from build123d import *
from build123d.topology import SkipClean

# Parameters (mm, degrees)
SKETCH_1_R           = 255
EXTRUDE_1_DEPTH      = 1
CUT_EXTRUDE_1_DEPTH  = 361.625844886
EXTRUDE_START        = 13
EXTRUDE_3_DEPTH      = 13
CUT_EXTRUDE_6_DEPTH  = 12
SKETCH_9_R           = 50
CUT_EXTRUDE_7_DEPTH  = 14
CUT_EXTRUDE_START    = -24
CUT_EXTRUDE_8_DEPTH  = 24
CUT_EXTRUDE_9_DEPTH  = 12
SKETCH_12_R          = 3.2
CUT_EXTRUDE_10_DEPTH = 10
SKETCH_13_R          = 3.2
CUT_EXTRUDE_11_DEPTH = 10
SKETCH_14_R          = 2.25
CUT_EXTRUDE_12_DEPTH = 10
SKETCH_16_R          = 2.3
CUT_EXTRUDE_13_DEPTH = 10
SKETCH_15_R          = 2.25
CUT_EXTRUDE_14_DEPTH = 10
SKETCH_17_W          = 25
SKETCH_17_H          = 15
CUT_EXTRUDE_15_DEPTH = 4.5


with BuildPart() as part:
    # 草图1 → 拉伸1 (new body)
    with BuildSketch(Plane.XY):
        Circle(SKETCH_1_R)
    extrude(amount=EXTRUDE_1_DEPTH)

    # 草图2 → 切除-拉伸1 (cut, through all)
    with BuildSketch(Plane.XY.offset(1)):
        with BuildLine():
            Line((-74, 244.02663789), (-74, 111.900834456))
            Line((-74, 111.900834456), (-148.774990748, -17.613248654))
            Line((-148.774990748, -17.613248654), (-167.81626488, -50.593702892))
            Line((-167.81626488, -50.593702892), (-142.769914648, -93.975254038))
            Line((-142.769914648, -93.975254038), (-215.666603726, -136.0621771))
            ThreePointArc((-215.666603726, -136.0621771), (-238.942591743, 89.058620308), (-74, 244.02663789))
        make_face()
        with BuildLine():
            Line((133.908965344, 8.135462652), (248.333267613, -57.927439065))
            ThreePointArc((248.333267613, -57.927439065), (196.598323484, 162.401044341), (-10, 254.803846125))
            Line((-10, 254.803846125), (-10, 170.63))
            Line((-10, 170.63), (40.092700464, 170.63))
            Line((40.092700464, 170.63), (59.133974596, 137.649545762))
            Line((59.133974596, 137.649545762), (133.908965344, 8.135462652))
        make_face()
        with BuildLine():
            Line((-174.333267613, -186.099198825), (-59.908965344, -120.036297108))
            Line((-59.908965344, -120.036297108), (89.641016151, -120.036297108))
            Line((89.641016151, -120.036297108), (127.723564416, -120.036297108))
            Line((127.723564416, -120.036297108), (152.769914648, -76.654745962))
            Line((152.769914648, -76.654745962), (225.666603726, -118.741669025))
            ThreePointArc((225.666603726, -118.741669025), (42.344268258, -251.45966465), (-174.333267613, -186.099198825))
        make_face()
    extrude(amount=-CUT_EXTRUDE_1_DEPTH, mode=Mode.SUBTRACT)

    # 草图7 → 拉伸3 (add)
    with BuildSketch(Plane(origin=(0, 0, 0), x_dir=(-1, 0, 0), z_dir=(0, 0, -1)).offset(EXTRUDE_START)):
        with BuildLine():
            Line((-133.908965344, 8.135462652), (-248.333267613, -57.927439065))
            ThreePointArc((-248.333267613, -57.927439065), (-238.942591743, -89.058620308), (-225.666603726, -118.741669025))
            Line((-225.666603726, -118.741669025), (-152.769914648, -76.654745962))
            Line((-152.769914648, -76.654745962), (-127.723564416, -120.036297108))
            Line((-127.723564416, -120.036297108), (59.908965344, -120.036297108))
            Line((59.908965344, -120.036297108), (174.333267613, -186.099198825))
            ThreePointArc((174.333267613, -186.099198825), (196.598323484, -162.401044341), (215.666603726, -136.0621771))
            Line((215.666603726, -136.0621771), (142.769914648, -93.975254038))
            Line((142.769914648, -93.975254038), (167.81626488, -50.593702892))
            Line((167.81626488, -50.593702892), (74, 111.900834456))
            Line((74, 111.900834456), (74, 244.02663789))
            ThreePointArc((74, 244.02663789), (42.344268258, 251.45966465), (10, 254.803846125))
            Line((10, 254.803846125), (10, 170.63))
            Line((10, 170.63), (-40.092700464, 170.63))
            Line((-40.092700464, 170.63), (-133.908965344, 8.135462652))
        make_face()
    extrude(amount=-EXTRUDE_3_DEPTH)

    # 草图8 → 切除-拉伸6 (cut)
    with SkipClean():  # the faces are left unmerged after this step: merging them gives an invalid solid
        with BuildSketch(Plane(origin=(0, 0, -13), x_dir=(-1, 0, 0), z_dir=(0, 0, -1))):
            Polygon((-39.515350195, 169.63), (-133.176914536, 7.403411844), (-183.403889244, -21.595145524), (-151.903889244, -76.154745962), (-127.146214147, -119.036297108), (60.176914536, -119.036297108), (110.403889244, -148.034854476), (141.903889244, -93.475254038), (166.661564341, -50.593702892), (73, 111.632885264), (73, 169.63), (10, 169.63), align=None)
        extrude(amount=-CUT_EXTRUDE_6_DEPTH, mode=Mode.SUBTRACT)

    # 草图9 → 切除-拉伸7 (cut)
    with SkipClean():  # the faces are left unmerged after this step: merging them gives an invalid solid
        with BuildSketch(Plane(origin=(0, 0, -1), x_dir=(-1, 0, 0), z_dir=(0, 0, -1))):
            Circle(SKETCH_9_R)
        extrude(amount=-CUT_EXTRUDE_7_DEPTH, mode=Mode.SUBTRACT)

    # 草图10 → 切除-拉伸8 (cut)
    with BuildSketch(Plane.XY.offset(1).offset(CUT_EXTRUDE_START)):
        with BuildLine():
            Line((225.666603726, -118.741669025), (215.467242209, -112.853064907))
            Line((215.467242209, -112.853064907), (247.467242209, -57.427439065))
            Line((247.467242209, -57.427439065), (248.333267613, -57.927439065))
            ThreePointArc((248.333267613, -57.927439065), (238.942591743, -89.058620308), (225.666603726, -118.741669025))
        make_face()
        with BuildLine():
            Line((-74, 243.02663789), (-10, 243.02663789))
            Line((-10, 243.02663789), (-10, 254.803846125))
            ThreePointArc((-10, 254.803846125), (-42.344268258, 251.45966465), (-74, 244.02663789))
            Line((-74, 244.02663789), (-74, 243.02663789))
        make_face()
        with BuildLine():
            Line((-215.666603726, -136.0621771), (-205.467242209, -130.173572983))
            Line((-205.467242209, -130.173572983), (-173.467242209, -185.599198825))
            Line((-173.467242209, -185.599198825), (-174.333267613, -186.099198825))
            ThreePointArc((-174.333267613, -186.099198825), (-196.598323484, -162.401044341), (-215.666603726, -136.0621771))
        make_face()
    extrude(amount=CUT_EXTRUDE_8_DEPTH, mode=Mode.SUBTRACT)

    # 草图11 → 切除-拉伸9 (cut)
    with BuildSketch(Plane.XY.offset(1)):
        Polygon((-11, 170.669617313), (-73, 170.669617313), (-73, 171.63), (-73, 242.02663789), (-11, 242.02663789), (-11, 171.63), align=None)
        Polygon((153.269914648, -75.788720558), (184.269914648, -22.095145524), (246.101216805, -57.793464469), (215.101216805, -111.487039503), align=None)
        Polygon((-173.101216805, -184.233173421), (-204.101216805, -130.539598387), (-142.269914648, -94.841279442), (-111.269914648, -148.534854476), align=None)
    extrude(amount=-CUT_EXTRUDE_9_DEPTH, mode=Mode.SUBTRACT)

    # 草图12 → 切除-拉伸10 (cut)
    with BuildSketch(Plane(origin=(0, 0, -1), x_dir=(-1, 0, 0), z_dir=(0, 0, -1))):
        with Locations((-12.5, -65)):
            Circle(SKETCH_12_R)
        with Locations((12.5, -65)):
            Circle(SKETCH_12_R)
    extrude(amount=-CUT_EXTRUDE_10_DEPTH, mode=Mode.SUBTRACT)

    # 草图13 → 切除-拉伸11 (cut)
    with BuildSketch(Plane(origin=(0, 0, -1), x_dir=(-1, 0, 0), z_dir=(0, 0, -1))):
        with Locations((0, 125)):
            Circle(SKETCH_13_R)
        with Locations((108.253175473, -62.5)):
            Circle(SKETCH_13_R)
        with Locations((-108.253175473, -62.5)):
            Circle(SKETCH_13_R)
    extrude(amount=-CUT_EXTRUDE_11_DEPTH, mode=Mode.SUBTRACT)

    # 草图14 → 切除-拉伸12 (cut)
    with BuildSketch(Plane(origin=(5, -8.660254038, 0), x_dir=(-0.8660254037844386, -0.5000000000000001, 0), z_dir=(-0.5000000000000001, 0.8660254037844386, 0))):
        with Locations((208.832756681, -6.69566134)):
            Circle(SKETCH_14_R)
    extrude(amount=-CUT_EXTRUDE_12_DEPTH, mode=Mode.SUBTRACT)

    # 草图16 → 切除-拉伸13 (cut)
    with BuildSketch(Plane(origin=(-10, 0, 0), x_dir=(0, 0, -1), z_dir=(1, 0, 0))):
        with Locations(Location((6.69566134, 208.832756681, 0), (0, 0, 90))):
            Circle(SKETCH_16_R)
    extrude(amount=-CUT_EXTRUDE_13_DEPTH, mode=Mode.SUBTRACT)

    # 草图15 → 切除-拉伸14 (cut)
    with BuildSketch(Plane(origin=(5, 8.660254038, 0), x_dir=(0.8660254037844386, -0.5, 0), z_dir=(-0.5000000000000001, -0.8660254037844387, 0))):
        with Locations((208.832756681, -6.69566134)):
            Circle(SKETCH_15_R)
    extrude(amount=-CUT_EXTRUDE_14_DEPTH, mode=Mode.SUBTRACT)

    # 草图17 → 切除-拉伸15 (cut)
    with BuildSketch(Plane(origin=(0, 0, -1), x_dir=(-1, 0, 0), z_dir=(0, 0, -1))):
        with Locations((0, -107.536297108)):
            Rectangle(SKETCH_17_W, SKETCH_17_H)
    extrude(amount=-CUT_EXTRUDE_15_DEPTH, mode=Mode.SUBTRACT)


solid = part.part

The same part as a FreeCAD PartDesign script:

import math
import FreeCAD as App
import Part
import Sketcher
from FreeCAD import Vector
Q = App.Units.Quantity


def add_polygon(sketch, points):
    """Adds a closed chain of lines whose ends are joined by coincident constraints."""
    first, n = sketch.GeometryCount, len(points)
    for a, b in zip(points, points[1:] + points[:1]):
        sketch.addGeometry(Part.LineSegment(App.Vector(*a, 0), App.Vector(*b, 0)), False)
    for i in range(n):
        sketch.addConstraint(Sketcher.Constraint("Coincident", first + i, 2, first + (i + 1) % n, 1))

doc = App.newDocument("Part")
body = doc.addObject("PartDesign::Body", "Body")

# Sketch on XY plane
sketch1 = body.newObject("Sketcher::SketchObject", "Sketch")
sketch1.AttachmentSupport = (doc.getObject("XY_Plane"), [""])
sketch1.MapMode = "FlatFace"
sketch1.addGeometry(Part.Circle(Vector(0, 0, 0), Vector(0, 0, 1), 255), False)
sketch1.addConstraint([
    Sketcher.Constraint("Coincident", 0, 3, -1, 1),
    Sketcher.Constraint("Diameter", 0, 510.0),
])
pad1 = body.newObject("PartDesign::Pad", "Pad")
pad1.Profile = sketch1
pad1.Length = 1

# Sketch on XY plane
sketch2 = body.newObject("Sketcher::SketchObject", "Sketch001")
sketch2.AttachmentSupport = (doc.getObject("XY_Plane"), [""])
sketch2.MapMode = "FlatFace"
sketch2.AttachmentOffset = App.Placement(Vector(0, 0, 1), App.Rotation())
sketch2.addGeometry([
    Part.LineSegment(Vector(-74, 112, 0), Vector(-74, 244, 0)),  # 0
    Part.ArcOfCircle(Part.Circle(Vector(0, 0, 0), Vector(0, 0, 1), 255), math.radians(107), math.radians(212)),  # 1
    Part.LineSegment(Vector(-216, -136, 0), Vector(-143, -94, 0)),  # 2
    Part.LineSegment(Vector(-143, -94, 0), Vector(-168, -51, 0)),  # 3
    Part.LineSegment(Vector(-168, -51, 0), Vector(-149, -18, 0)),  # 4
    Part.LineSegment(Vector(-149, -18, 0), Vector(-74, 112, 0)),  # 5
    Part.LineSegment(Vector(134, 8, 0), Vector(248, -58, 0)),  # 6
    Part.ArcOfCircle(Part.Circle(Vector(0, 0, 0), Vector(0, 0, 1), 255), math.radians(-13), math.radians(92)),  # 7
    Part.LineSegment(Vector(-10, 255, 0), Vector(-10, 171, 0)),  # 8
    Part.LineSegment(Vector(-10, 171, 0), Vector(40, 171, 0)),  # 9
    Part.LineSegment(Vector(40, 171, 0), Vector(59, 138, 0)),  # 10
    Part.LineSegment(Vector(59, 138, 0), Vector(134, 8, 0)),  # 11
    Part.LineSegment(Vector(-60, -120, 0), Vector(-174, -186, 0)),  # 12
    Part.ArcOfCircle(Part.Circle(Vector(0, 0, 0), Vector(0, 0, 1), 255), math.radians(-133), math.radians(-28)),  # 13
    Part.LineSegment(Vector(226, -119, 0), Vector(153, -77, 0)),  # 14
    Part.LineSegment(Vector(153, -77, 0), Vector(128, -120, 0)),  # 15
    Part.LineSegment(Vector(128, -120, 0), Vector(-60, -120, 0)),  # 16
], False)
sketch2.addConstraint([
    Sketcher.Constraint("Coincident", 0, 2, 1, 1),
    Sketcher.Constraint("Coincident", 1, 2, 2, 1),
    Sketcher.Constraint("Coincident", 2, 2, 3, 1),
    Sketcher.Constraint("Coincident", 3, 2, 4, 1),
    Sketcher.Constraint("Coincident", 4, 2, 5, 1),
    Sketcher.Constraint("Coincident", 5, 2, 0, 1),
    Sketcher.Constraint("Coincident", 6, 2, 7, 1),
    Sketcher.Constraint("Coincident", 7, 2, 8, 1),
    Sketcher.Constraint("Coincident", 8, 2, 9, 1),
    Sketcher.Constraint("Coincident", 9, 2, 10, 1),
    Sketcher.Constraint("Coincident", 10, 2, 11, 1),
    Sketcher.Constraint("Coincident", 11, 2, 6, 1),
    Sketcher.Constraint("Coincident", 12, 2, 13, 1),
    Sketcher.Constraint("Coincident", 13, 2, 14, 1),
    Sketcher.Constraint("Coincident", 14, 2, 15, 1),
    Sketcher.Constraint("Coincident", 15, 2, 16, 1),
    Sketcher.Constraint("Coincident", 16, 2, 12, 1),
    Sketcher.Constraint("Vertical", 0),
    Sketcher.Constraint("Vertical", 8),
    Sketcher.Constraint("Horizontal", 9),
    Sketcher.Constraint("Horizontal", 16),
    Sketcher.Constraint("Coincident", 1, 3, -1, 1),
    Sketcher.Constraint("Coincident", 7, 3, -1, 1),
    Sketcher.Constraint("Coincident", 13, 3, -1, 1),
    Sketcher.Constraint("Equal", 1, 7),
    Sketcher.Constraint("Equal", 7, 13),
    Sketcher.Constraint("Perpendicular", 2, 3),
    Sketcher.Constraint("Parallel", 4, 5),
    Sketcher.Constraint("Perpendicular", 5, 6),
    Sketcher.Constraint("Parallel", 3, 10),
    Sketcher.Constraint("Parallel", 10, 11),
    Sketcher.Constraint("Perpendicular", 11, 12),
    Sketcher.Constraint("Parallel", 6, 14),
    Sketcher.Constraint("Perpendicular", 14, 15),
    Sketcher.Constraint("Equal", 4, 10),
    Sketcher.Constraint("Equal", 5, 11),
    Sketcher.Constraint("Equal", 6, 12),
    Sketcher.Constraint("Equal", 2, 14),
    Sketcher.Constraint("Equal", 3, 15),
    Sketcher.Constraint("Radius", 1, 255.0),
    Sketcher.Constraint("Angle", 2, Q("30 deg")),
    Sketcher.Constraint("Angle", 4, Q("60 deg")),
    Sketcher.Constraint("DistanceX", 0, 2, -1, 1, 74.0),
    Sketcher.Constraint("DistanceX", 7, 2, -1, 1, 10.0),
    Sketcher.Constraint("DistanceY", -1, 1, 8, 2, 170.63),
    Sketcher.Constraint("DistanceX", 9, 1, 9, 2, 50.0927),
    Sketcher.Constraint("Distance", 3, 50.0927),
    Sketcher.Constraint("DistanceX", 16, 2, 16, 1, 187.63253),
    Sketcher.Constraint("DistanceY", 12, 2, -1, 1, 186.099199),
    Sketcher.Constraint("DistanceY", 10, 2, 7, 2, 117.1543),
    Sketcher.Constraint("DistanceY", 6, 2, 11, 2, 66.062902),
])
pocket1 = body.newObject("PartDesign::Pocket", "Pocket")
pocket1.Profile = sketch2
pocket1.Type = "ThroughAll"

# Sketch on XY plane
sketch3 = body.newObject("Sketcher::SketchObject", "Sketch002")
sketch3.AttachmentSupport = (doc.getObject("XY_Plane"), [""])
sketch3.MapMode = "FlatFace"
sketch3.AttachmentOffset = App.Placement(Vector(0, 0, -13), App.Rotation())
sketch3.addGeometry([
    Part.LineSegment(Vector(134, 8, 0), Vector(248, -58, 0)),  # 0
    Part.ArcOfCircle(Part.Circle(Vector(0, 0, 0), Vector(0, 0, 1), 255), math.radians(-27.75), math.radians(-13.13)),  # 1
    Part.LineSegment(Vector(226, -119, 0), Vector(153, -77, 0)),  # 2
    Part.LineSegment(Vector(153, -77, 0), Vector(128, -120, 0)),  # 3
    Part.LineSegment(Vector(128, -120, 0), Vector(-60, -120, 0)),  # 4
    Part.LineSegment(Vector(-60, -120, 0), Vector(-174, -186, 0)),  # 5
    Part.ArcOfCircle(Part.Circle(Vector(0, 0, 0), Vector(0, 0, 1), 255), math.radians(-147.75), math.radians(-133.13)),  # 6
    Part.LineSegment(Vector(-216, -136, 0), Vector(-143, -94, 0)),  # 7
    Part.LineSegment(Vector(-143, -94, 0), Vector(-168, -51, 0)),  # 8
    Part.LineSegment(Vector(-168, -51, 0), Vector(-74, 112, 0)),  # 9
    Part.LineSegment(Vector(-74, 112, 0), Vector(-74, 244, 0)),  # 10
    Part.ArcOfCircle(Part.Circle(Vector(0, 0, 0), Vector(0, 0, 1), 255), math.radians(92.25), math.radians(106.87)),  # 11
    Part.LineSegment(Vector(-10, 255, 0), Vector(-10, 171, 0)),  # 12
    Part.LineSegment(Vector(-10, 171, 0), Vector(40, 171, 0)),  # 13
    Part.LineSegment(Vector(40, 171, 0), Vector(134, 8, 0)),  # 14
], False)
sketch3.addConstraint([
    Sketcher.Constraint("Coincident", 0, 2, 1, 2),
    Sketcher.Constraint("Coincident", 1, 1, 2, 1),
    Sketcher.Constraint("Coincident", 2, 2, 3, 1),
    Sketcher.Constraint("Coincident", 3, 2, 4, 1),
    Sketcher.Constraint("Coincident", 4, 2, 5, 1),
    Sketcher.Constraint("Coincident", 5, 2, 6, 2),
    Sketcher.Constraint("Coincident", 6, 1, 7, 1),
    Sketcher.Constraint("Coincident", 7, 2, 8, 1),
    Sketcher.Constraint("Coincident", 8, 2, 9, 1),
    Sketcher.Constraint("Coincident", 9, 2, 10, 1),
    Sketcher.Constraint("Coincident", 10, 2, 11, 2),
    Sketcher.Constraint("Coincident", 11, 1, 12, 1),
    Sketcher.Constraint("Coincident", 12, 2, 13, 1),
    Sketcher.Constraint("Coincident", 13, 2, 14, 1),
    Sketcher.Constraint("Coincident", 14, 2, 0, 1),
    Sketcher.Constraint("Horizontal", 4),
    Sketcher.Constraint("Vertical", 10),
    Sketcher.Constraint("Vertical", 12),
    Sketcher.Constraint("Horizontal", 13),
    Sketcher.Constraint("Coincident", 1, 3, -1, 1),
    Sketcher.Constraint("Coincident", 6, 3, -1, 1),
    Sketcher.Constraint("Coincident", 11, 3, -1, 1),
    Sketcher.Constraint("Equal", 1, 6),
    Sketcher.Constraint("Equal", 6, 11),
    Sketcher.Constraint("Parallel", 0, 2),
    Sketcher.Constraint("Perpendicular", 2, 3),
    Sketcher.Constraint("Parallel", 5, 7),
    Sketcher.Constraint("Perpendicular", 7, 8),
    Sketcher.Constraint("Parallel", 3, 9),
    Sketcher.Constraint("Parallel", 8, 14),
    Sketcher.Constraint("Equal", 0, 5),
    Sketcher.Constraint("Equal", 2, 7),
    Sketcher.Constraint("Equal", 3, 8),
    Sketcher.Constraint("Equal", 9, 14),
    Sketcher.Constraint("Radius", 1, 255.0),
    Sketcher.Constraint("Angle", 0, Q("-30 deg")),
    Sketcher.Constraint("Angle", 5, Q("-150 deg")),
    Sketcher.Constraint("DistanceX", 9, 2, -1, 1, 74.0),
    Sketcher.Constraint("DistanceX", 11, 1, -1, 1, 10.0),
    Sketcher.Constraint("DistanceY", -1, 1, 12, 2, 170.63),
    Sketcher.Constraint("DistanceX", 13, 1, 13, 2, 50.0927),
    Sketcher.Constraint("Distance", 3, 50.0927),
    Sketcher.Constraint("DistanceX", 4, 2, 4, 1, 187.63253),
    Sketcher.Constraint("DistanceY", 5, 2, -1, 1, 186.099199),
    Sketcher.Constraint("DistanceY", 5, 2, 4, 2, 66.062902),
])
pad2 = body.newObject("PartDesign::Pad", "Pad001")
pad2.Profile = sketch3
pad2.Length = 13

# Sketch on XY plane
sketch4 = body.newObject("Sketcher::SketchObject", "Sketch003")
sketch4.AttachmentSupport = (doc.getObject("XY_Plane"), [""])
sketch4.MapMode = "FlatFace"
sketch4.AttachmentOffset = App.Placement(Vector(0, 0, -13), App.Rotation())
add_polygon(sketch4, [(40, 170), (133, 7), (183, -22), (152, -76), (127, -119), (-60, -119), (-110, -148), (-142, -93), (-167, -51), (-73, 112), (-73, 170)])  # lines 0-10
sketch4.addConstraint([
    Sketcher.Constraint("Horizontal", 4),
    Sketcher.Constraint("Vertical", 9),
    Sketcher.Constraint("Horizontal", 10),
    Sketcher.Constraint("Perpendicular", 1, 2),
    Sketcher.Constraint("Parallel", 2, 3),
    Sketcher.Constraint("Perpendicular", 0, 5),
    Sketcher.Constraint("Perpendicular", 5, 6),
    Sketcher.Constraint("Parallel", 6, 7),
    Sketcher.Constraint("Parallel", 3, 8),
    Sketcher.Constraint("Equal", 1, 5),
    Sketcher.Constraint("Equal", 2, 6),
    Sketcher.Constraint("Equal", 3, 7),
    Sketcher.Constraint("Equal", 0, 8),
    Sketcher.Constraint("Angle", 0, Q("-60 deg")),
    Sketcher.Constraint("Angle", 1, Q("-30 deg")),
    Sketcher.Constraint("Distance", 2, 63.0),
    Sketcher.Constraint("DistanceX", 8, 2, -1, 1, 73.0),
    Sketcher.Constraint("DistanceY", -1, 1, 9, 2, 169.63),
    Sketcher.Constraint("DistanceX", 4, 2, 4, 1, 187.323129),
    Sketcher.Constraint("DistanceX", 10, 1, 10, 2, 112.51535),
    Sketcher.Constraint("DistanceX", 3, 2, 0, 2, 6.0307),
    Sketcher.Constraint("Distance", 0, 187.323129),
])
pocket2 = body.newObject("PartDesign::Pocket", "Pocket001")
pocket2.Profile = sketch4
pocket2.Length = 12
pocket2.Reversed = True

# Sketch on XY plane
sketch5 = body.newObject("Sketcher::SketchObject", "Sketch004")
sketch5.AttachmentSupport = (doc.getObject("XY_Plane"), [""])
sketch5.MapMode = "FlatFace"
sketch5.AttachmentOffset = App.Placement(Vector(0, 0, -1), App.Rotation())
sketch5.addGeometry(Part.Circle(Vector(0, 0, 0), Vector(0, 0, 1), 50), False)
sketch5.addConstraint([
    Sketcher.Constraint("Coincident", 0, 3, -1, 1),
    Sketcher.Constraint("Diameter", 0, 100.0),
])
pocket3 = body.newObject("PartDesign::Pocket", "Pocket002")
pocket3.Profile = sketch5
pocket3.Length = 14
pocket3.Reversed = True

# Sketch on XY plane
sketch6 = body.newObject("Sketcher::SketchObject", "Sketch005")
sketch6.AttachmentSupport = (doc.getObject("XY_Plane"), [""])
sketch6.MapMode = "FlatFace"
sketch6.AttachmentOffset = App.Placement(Vector(0, 0, -23), App.Rotation())
sketch6.addGeometry([
    Part.LineSegment(Vector(215.5, -112.9, 0), Vector(225.7, -118.7, 0)),  # 0
    Part.ArcOfCircle(Part.Circle(Vector(0, 0, 0), Vector(0, 0, 1), 255), math.radians(-27.75), math.radians(-13.13)),  # 1
    Part.LineSegment(Vector(248.3, -57.9, 0), Vector(247.5, -57.4, 0)),  # 2
    Part.LineSegment(Vector(247.5, -57.4, 0), Vector(215.5, -112.9, 0)),  # 3
    Part.LineSegment(Vector(-74, 243, 0), Vector(-10, 243, 0)),  # 4
    Part.LineSegment(Vector(-10, 243, 0), Vector(-10, 254.8, 0)),  # 5
    Part.ArcOfCircle(Part.Circle(Vector(0, 0, 0), Vector(0, 0, 1), 255), math.radians(92.25), math.radians(106.87)),  # 6
    Part.LineSegment(Vector(-74, 244, 0), Vector(-74, 243, 0)),  # 7
    Part.LineSegment(Vector(-205.5, -130.2, 0), Vector(-215.7, -136.1, 0)),  # 8
    Part.ArcOfCircle(Part.Circle(Vector(0, 0, 0), Vector(0, 0, 1), 255), math.radians(-147.75), math.radians(-133.13)),  # 9
    Part.LineSegment(Vector(-174.3, -186.1, 0), Vector(-173.5, -185.6, 0)),  # 10
    Part.LineSegment(Vector(-173.5, -185.6, 0), Vector(-205.5, -130.2, 0)),  # 11
], False)
sketch6.addConstraint([
    Sketcher.Constraint("Coincident", 0, 2, 1, 1),
    Sketcher.Constraint("Coincident", 1, 2, 2, 1),
    Sketcher.Constraint("Coincident", 2, 2, 3, 1),
    Sketcher.Constraint("Coincident", 3, 2, 0, 1),
    Sketcher.Constraint("Coincident", 4, 2, 5, 1),
    Sketcher.Constraint("Coincident", 5, 2, 6, 1),
    Sketcher.Constraint("Coincident", 6, 2, 7, 1),
    Sketcher.Constraint("Coincident", 7, 2, 4, 1),
    Sketcher.Constraint("Coincident", 8, 2, 9, 1),
    Sketcher.Constraint("Coincident", 9, 2, 10, 1),
    Sketcher.Constraint("Coincident", 10, 2, 11, 1),
    Sketcher.Constraint("Coincident", 11, 2, 8, 1),
    Sketcher.Constraint("Horizontal", 4),
    Sketcher.Constraint("Vertical", 5),
    Sketcher.Constraint("Vertical", 7),
    Sketcher.Constraint("Coincident", 1, 3, -1, 1),
    Sketcher.Constraint("Coincident", 6, 3, -1, 1),
    Sketcher.Constraint("Coincident", 9, 3, -1, 1),
    Sketcher.Constraint("Equal", 1, 6),
    Sketcher.Constraint("Equal", 6, 9),
    Sketcher.Constraint("Parallel", 0, 2),
    Sketcher.Constraint("Perpendicular", 2, 3),
    Sketcher.Constraint("Parallel", 8, 10),
    Sketcher.Constraint("Perpendicular", 10, 11),
    Sketcher.Constraint("Equal", 0, 8),
    Sketcher.Constraint("Equal", 2, 10),
    Sketcher.Constraint("Equal", 3, 11),
    Sketcher.Constraint("Radius", 1, 255.0),
    Sketcher.Constraint("DistanceX", 4, 1, 4, 2, 64.0),
    Sketcher.Constraint("DistanceY", 7, 2, 7, 1, 1.0),
    Sketcher.Constraint("Angle", 0, Q("-30 deg")),
    Sketcher.Constraint("Angle", 8, Q("-150 deg")),
    Sketcher.Constraint("Distance", 2, 1.0),
    Sketcher.Constraint("Distance", 3, 64.0),
    Sketcher.Constraint("DistanceX", 4, 2, -1, 1, 10.0),
    Sketcher.Constraint("DistanceY", 10, 2, -1, 1, 185.599199),
])
pocket4 = body.newObject("PartDesign::Pocket", "Pocket003")
pocket4.Profile = sketch6
pocket4.Length = 24
pocket4.Reversed = True

# Sketch on XY plane
sketch7 = body.newObject("Sketcher::SketchObject", "Sketch006")
sketch7.AttachmentSupport = (doc.getObject("XY_Plane"), [""])
sketch7.MapMode = "FlatFace"
sketch7.AttachmentOffset = App.Placement(Vector(0, 0, 1), App.Rotation())
add_polygon(sketch7, [(-73, 171), (-11, 171), (-11, 242), (-73, 242)])  # lines 0-3
add_polygon(sketch7, [(184, -22), (153, -76), (215, -111), (246, -58)])  # lines 4-7
add_polygon(sketch7, [(-204, -131), (-173, -184), (-111, -149), (-142, -95)])  # lines 8-11
sketch7.addConstraint([
    Sketcher.Constraint("Horizontal", 0),
    Sketcher.Constraint("Vertical", 1),
    Sketcher.Constraint("Horizontal", 2),
    Sketcher.Constraint("Vertical", 3),
    Sketcher.Constraint("Perpendicular", 4, 5),
    Sketcher.Constraint("Perpendicular", 5, 6),
    Sketcher.Constraint("Perpendicular", 6, 7),
    Sketcher.Constraint("Perpendicular", 8, 9),
    Sketcher.Constraint("Perpendicular", 9, 10),
    Sketcher.Constraint("Perpendicular", 10, 11),
    Sketcher.Constraint("Equal", 6, 8),
    Sketcher.Constraint("Equal", 7, 9),
    Sketcher.Constraint("DistanceX", 0, 1, 0, 2, 62.0),
    Sketcher.Constraint("Angle", 4, Q("-120 deg")),
    Sketcher.Constraint("Angle", 8, Q("-60 deg")),
    Sketcher.Constraint("Distance", 4, 62.0),
    Sketcher.Constraint("DistanceX", 0, 2, -1, 1, 11.0),
    Sketcher.Constraint("DistanceY", 1, 1, 1, 2, 71.357021),
    Sketcher.Constraint("DistanceY", 11, 2, -1, 1, 130.539598),
    Sketcher.Constraint("DistanceY", 4, 2, -1, 1, 75.788721),
    Sketcher.Constraint("DistanceY", 5, 2, -1, 1, 111.48704),
    Sketcher.Constraint("DistanceY", 4, 2, 1, 2, 317.815358),
    Sketcher.Constraint("DistanceX", 8, 2, 4, 2, 326.371131),
    Sketcher.Constraint("DistanceX", -1, 1, 4, 2, 153.269915),
])
pocket5 = body.newObject("PartDesign::Pocket", "Pocket004")
pocket5.Profile = sketch7
pocket5.Length = 12

# Sketch on XY plane
sketch8 = body.newObject("Sketcher::SketchObject", "Sketch007")
sketch8.AttachmentSupport = (doc.getObject("XY_Plane"), [""])
sketch8.MapMode = "FlatFace"
sketch8.AttachmentOffset = App.Placement(Vector(0, 0, -1), App.Rotation())
sketch8.addGeometry([
    Part.Circle(Vector(12.5, -65, 0), Vector(0, 0, 1), 3.2),
    Part.Circle(Vector(-12.5, -65, 0), Vector(0, 0, 1), 3.2),
], False)
sketch8.addConstraint([
    Sketcher.Constraint("Equal", 0, 1),
    Sketcher.Constraint("Symmetric", 0, 3, 1, 3, -2),
    Sketcher.Constraint("Diameter", 0, 6.4),
    Sketcher.Constraint("DistanceY", 0, 3, -1, 1, 65.0),
    Sketcher.Constraint("DistanceX", 1, 3, 0, 3, 25.0),
])
pocket6 = body.newObject("PartDesign::Pocket", "Pocket005")
pocket6.Profile = sketch8
pocket6.Length = 10
pocket6.Reversed = True

# Sketch on XY plane
sketch9 = body.newObject("Sketcher::SketchObject", "Sketch008")
sketch9.AttachmentSupport = (doc.getObject("XY_Plane"), [""])
sketch9.MapMode = "FlatFace"
sketch9.AttachmentOffset = App.Placement(Vector(0, 0, -1), App.Rotation())
sketch9.addGeometry([
    Part.Circle(Vector(0, 125, 0), Vector(0, 0, 1), 3.2),
    Part.Circle(Vector(-108.3, -62.5, 0), Vector(0, 0, 1), 3.2),
    Part.Circle(Vector(108.3, -62.5, 0), Vector(0, 0, 1), 3.2),
], False)
sketch9.addConstraint([
    Sketcher.Constraint("Equal", 0, 1),
    Sketcher.Constraint("Equal", 1, 2),
    Sketcher.Constraint("Symmetric", 1, 3, 2, 3, -2),
    Sketcher.Constraint("PointOnObject", 0, 3, -2),
    Sketcher.Constraint("Diameter", 0, 6.4),
    Sketcher.Constraint("DistanceY", -1, 1, 0, 3, 125.0),
    Sketcher.Constraint("DistanceY", 1, 3, -1, 1, 62.5),
    Sketcher.Constraint("DistanceX", 1, 3, 2, 3, 216.506351),
])
pocket7 = body.newObject("PartDesign::Pocket", "Pocket006")
pocket7.Profile = sketch9
pocket7.Length = 10
pocket7.Reversed = True

# Sketch on an angled plane
sketch10 = body.newObject("Sketcher::SketchObject", "Sketch009")
sketch10.Placement = App.Placement(Vector(5, -8.660254, 0), App.Rotation(Vector(-0.866025404, -0.5, 0), Vector(0, 0, 1), Vector(-0.5, 0.866025404, 0), "ZXY"))
sketch10.addGeometry(Part.Circle(Vector(208.8, -6.7, 0), Vector(0, 0, 1), 2.2), False)
sketch10.addConstraint([
    Sketcher.Constraint("Diameter", 0, 4.5),
    Sketcher.Constraint("DistanceY", 0, 3, -1, 1, 6.695661),
    Sketcher.Constraint("DistanceX", -1, 1, 0, 3, 208.832757),
])
pocket8 = body.newObject("PartDesign::Pocket", "Pocket007")
pocket8.Profile = sketch10
pocket8.Length = 10

# Sketch on YZ plane
sketch11 = body.newObject("Sketcher::SketchObject", "Sketch010")
sketch11.AttachmentSupport = (doc.getObject("YZ_Plane"), [""])
sketch11.MapMode = "FlatFace"
sketch11.AttachmentOffset = App.Placement(Vector(0, 0, -10), App.Rotation())
sketch11.addGeometry(Part.Circle(Vector(208.8, -6.7, 0), Vector(0, 0, 1), 2.3), False)
sketch11.addConstraint([
    Sketcher.Constraint("Diameter", 0, 4.6),
    Sketcher.Constraint("DistanceY", 0, 3, -1, 1, 6.695661),
    Sketcher.Constraint("DistanceX", -1, 1, 0, 3, 208.832757),
])
pocket9 = body.newObject("PartDesign::Pocket", "Pocket008")
pocket9.Profile = sketch11
pocket9.Length = 10

# Sketch on an angled plane
sketch12 = body.newObject("Sketcher::SketchObject", "Sketch011")
sketch12.Placement = App.Placement(Vector(5, 8.660254, 0), App.Rotation(Vector(0.866025404, -0.5, 0), Vector(0, 0, 1), Vector(-0.5, -0.866025404, 0), "ZXY"))
sketch12.addGeometry(Part.Circle(Vector(208.8, -6.7, 0), Vector(0, 0, 1), 2.2), False)
sketch12.addConstraint([
    Sketcher.Constraint("Diameter", 0, 4.5),
    Sketcher.Constraint("DistanceY", 0, 3, -1, 1, 6.695661),
    Sketcher.Constraint("DistanceX", -1, 1, 0, 3, 208.832757),
])
pocket10 = body.newObject("PartDesign::Pocket", "Pocket009")
pocket10.Profile = sketch12
pocket10.Length = 10

# Sketch on XY plane
sketch13 = body.newObject("Sketcher::SketchObject", "Sketch012")
sketch13.AttachmentSupport = (doc.getObject("XY_Plane"), [""])
sketch13.MapMode = "FlatFace"
sketch13.AttachmentOffset = App.Placement(Vector(0, 0, -1), App.Rotation())
add_polygon(sketch13, [(12, -100), (12, -115), (-12, -115), (-12, -100)])  # lines 0-3
sketch13.addConstraint([
    Sketcher.Constraint("Vertical", 0),
    Sketcher.Constraint("Horizontal", 1),
    Sketcher.Constraint("Vertical", 2),
    Sketcher.Constraint("Horizontal", 3),
    Sketcher.Constraint("DistanceX", 1, 2, 1, 1, 25.0),
    Sketcher.Constraint("DistanceY", 0, 2, 0, 1, 15.0),
    Sketcher.Constraint("DistanceX", -1, 1, 0, 2, 12.5),
    Sketcher.Constraint("DistanceY", 0, 2, -1, 1, 115.036297),
])
pocket11 = body.newObject("PartDesign::Pocket", "Pocket010")
pocket11.Profile = sketch13
pocket11.Length = 4.5
pocket11.Reversed = True

doc.recompute()
